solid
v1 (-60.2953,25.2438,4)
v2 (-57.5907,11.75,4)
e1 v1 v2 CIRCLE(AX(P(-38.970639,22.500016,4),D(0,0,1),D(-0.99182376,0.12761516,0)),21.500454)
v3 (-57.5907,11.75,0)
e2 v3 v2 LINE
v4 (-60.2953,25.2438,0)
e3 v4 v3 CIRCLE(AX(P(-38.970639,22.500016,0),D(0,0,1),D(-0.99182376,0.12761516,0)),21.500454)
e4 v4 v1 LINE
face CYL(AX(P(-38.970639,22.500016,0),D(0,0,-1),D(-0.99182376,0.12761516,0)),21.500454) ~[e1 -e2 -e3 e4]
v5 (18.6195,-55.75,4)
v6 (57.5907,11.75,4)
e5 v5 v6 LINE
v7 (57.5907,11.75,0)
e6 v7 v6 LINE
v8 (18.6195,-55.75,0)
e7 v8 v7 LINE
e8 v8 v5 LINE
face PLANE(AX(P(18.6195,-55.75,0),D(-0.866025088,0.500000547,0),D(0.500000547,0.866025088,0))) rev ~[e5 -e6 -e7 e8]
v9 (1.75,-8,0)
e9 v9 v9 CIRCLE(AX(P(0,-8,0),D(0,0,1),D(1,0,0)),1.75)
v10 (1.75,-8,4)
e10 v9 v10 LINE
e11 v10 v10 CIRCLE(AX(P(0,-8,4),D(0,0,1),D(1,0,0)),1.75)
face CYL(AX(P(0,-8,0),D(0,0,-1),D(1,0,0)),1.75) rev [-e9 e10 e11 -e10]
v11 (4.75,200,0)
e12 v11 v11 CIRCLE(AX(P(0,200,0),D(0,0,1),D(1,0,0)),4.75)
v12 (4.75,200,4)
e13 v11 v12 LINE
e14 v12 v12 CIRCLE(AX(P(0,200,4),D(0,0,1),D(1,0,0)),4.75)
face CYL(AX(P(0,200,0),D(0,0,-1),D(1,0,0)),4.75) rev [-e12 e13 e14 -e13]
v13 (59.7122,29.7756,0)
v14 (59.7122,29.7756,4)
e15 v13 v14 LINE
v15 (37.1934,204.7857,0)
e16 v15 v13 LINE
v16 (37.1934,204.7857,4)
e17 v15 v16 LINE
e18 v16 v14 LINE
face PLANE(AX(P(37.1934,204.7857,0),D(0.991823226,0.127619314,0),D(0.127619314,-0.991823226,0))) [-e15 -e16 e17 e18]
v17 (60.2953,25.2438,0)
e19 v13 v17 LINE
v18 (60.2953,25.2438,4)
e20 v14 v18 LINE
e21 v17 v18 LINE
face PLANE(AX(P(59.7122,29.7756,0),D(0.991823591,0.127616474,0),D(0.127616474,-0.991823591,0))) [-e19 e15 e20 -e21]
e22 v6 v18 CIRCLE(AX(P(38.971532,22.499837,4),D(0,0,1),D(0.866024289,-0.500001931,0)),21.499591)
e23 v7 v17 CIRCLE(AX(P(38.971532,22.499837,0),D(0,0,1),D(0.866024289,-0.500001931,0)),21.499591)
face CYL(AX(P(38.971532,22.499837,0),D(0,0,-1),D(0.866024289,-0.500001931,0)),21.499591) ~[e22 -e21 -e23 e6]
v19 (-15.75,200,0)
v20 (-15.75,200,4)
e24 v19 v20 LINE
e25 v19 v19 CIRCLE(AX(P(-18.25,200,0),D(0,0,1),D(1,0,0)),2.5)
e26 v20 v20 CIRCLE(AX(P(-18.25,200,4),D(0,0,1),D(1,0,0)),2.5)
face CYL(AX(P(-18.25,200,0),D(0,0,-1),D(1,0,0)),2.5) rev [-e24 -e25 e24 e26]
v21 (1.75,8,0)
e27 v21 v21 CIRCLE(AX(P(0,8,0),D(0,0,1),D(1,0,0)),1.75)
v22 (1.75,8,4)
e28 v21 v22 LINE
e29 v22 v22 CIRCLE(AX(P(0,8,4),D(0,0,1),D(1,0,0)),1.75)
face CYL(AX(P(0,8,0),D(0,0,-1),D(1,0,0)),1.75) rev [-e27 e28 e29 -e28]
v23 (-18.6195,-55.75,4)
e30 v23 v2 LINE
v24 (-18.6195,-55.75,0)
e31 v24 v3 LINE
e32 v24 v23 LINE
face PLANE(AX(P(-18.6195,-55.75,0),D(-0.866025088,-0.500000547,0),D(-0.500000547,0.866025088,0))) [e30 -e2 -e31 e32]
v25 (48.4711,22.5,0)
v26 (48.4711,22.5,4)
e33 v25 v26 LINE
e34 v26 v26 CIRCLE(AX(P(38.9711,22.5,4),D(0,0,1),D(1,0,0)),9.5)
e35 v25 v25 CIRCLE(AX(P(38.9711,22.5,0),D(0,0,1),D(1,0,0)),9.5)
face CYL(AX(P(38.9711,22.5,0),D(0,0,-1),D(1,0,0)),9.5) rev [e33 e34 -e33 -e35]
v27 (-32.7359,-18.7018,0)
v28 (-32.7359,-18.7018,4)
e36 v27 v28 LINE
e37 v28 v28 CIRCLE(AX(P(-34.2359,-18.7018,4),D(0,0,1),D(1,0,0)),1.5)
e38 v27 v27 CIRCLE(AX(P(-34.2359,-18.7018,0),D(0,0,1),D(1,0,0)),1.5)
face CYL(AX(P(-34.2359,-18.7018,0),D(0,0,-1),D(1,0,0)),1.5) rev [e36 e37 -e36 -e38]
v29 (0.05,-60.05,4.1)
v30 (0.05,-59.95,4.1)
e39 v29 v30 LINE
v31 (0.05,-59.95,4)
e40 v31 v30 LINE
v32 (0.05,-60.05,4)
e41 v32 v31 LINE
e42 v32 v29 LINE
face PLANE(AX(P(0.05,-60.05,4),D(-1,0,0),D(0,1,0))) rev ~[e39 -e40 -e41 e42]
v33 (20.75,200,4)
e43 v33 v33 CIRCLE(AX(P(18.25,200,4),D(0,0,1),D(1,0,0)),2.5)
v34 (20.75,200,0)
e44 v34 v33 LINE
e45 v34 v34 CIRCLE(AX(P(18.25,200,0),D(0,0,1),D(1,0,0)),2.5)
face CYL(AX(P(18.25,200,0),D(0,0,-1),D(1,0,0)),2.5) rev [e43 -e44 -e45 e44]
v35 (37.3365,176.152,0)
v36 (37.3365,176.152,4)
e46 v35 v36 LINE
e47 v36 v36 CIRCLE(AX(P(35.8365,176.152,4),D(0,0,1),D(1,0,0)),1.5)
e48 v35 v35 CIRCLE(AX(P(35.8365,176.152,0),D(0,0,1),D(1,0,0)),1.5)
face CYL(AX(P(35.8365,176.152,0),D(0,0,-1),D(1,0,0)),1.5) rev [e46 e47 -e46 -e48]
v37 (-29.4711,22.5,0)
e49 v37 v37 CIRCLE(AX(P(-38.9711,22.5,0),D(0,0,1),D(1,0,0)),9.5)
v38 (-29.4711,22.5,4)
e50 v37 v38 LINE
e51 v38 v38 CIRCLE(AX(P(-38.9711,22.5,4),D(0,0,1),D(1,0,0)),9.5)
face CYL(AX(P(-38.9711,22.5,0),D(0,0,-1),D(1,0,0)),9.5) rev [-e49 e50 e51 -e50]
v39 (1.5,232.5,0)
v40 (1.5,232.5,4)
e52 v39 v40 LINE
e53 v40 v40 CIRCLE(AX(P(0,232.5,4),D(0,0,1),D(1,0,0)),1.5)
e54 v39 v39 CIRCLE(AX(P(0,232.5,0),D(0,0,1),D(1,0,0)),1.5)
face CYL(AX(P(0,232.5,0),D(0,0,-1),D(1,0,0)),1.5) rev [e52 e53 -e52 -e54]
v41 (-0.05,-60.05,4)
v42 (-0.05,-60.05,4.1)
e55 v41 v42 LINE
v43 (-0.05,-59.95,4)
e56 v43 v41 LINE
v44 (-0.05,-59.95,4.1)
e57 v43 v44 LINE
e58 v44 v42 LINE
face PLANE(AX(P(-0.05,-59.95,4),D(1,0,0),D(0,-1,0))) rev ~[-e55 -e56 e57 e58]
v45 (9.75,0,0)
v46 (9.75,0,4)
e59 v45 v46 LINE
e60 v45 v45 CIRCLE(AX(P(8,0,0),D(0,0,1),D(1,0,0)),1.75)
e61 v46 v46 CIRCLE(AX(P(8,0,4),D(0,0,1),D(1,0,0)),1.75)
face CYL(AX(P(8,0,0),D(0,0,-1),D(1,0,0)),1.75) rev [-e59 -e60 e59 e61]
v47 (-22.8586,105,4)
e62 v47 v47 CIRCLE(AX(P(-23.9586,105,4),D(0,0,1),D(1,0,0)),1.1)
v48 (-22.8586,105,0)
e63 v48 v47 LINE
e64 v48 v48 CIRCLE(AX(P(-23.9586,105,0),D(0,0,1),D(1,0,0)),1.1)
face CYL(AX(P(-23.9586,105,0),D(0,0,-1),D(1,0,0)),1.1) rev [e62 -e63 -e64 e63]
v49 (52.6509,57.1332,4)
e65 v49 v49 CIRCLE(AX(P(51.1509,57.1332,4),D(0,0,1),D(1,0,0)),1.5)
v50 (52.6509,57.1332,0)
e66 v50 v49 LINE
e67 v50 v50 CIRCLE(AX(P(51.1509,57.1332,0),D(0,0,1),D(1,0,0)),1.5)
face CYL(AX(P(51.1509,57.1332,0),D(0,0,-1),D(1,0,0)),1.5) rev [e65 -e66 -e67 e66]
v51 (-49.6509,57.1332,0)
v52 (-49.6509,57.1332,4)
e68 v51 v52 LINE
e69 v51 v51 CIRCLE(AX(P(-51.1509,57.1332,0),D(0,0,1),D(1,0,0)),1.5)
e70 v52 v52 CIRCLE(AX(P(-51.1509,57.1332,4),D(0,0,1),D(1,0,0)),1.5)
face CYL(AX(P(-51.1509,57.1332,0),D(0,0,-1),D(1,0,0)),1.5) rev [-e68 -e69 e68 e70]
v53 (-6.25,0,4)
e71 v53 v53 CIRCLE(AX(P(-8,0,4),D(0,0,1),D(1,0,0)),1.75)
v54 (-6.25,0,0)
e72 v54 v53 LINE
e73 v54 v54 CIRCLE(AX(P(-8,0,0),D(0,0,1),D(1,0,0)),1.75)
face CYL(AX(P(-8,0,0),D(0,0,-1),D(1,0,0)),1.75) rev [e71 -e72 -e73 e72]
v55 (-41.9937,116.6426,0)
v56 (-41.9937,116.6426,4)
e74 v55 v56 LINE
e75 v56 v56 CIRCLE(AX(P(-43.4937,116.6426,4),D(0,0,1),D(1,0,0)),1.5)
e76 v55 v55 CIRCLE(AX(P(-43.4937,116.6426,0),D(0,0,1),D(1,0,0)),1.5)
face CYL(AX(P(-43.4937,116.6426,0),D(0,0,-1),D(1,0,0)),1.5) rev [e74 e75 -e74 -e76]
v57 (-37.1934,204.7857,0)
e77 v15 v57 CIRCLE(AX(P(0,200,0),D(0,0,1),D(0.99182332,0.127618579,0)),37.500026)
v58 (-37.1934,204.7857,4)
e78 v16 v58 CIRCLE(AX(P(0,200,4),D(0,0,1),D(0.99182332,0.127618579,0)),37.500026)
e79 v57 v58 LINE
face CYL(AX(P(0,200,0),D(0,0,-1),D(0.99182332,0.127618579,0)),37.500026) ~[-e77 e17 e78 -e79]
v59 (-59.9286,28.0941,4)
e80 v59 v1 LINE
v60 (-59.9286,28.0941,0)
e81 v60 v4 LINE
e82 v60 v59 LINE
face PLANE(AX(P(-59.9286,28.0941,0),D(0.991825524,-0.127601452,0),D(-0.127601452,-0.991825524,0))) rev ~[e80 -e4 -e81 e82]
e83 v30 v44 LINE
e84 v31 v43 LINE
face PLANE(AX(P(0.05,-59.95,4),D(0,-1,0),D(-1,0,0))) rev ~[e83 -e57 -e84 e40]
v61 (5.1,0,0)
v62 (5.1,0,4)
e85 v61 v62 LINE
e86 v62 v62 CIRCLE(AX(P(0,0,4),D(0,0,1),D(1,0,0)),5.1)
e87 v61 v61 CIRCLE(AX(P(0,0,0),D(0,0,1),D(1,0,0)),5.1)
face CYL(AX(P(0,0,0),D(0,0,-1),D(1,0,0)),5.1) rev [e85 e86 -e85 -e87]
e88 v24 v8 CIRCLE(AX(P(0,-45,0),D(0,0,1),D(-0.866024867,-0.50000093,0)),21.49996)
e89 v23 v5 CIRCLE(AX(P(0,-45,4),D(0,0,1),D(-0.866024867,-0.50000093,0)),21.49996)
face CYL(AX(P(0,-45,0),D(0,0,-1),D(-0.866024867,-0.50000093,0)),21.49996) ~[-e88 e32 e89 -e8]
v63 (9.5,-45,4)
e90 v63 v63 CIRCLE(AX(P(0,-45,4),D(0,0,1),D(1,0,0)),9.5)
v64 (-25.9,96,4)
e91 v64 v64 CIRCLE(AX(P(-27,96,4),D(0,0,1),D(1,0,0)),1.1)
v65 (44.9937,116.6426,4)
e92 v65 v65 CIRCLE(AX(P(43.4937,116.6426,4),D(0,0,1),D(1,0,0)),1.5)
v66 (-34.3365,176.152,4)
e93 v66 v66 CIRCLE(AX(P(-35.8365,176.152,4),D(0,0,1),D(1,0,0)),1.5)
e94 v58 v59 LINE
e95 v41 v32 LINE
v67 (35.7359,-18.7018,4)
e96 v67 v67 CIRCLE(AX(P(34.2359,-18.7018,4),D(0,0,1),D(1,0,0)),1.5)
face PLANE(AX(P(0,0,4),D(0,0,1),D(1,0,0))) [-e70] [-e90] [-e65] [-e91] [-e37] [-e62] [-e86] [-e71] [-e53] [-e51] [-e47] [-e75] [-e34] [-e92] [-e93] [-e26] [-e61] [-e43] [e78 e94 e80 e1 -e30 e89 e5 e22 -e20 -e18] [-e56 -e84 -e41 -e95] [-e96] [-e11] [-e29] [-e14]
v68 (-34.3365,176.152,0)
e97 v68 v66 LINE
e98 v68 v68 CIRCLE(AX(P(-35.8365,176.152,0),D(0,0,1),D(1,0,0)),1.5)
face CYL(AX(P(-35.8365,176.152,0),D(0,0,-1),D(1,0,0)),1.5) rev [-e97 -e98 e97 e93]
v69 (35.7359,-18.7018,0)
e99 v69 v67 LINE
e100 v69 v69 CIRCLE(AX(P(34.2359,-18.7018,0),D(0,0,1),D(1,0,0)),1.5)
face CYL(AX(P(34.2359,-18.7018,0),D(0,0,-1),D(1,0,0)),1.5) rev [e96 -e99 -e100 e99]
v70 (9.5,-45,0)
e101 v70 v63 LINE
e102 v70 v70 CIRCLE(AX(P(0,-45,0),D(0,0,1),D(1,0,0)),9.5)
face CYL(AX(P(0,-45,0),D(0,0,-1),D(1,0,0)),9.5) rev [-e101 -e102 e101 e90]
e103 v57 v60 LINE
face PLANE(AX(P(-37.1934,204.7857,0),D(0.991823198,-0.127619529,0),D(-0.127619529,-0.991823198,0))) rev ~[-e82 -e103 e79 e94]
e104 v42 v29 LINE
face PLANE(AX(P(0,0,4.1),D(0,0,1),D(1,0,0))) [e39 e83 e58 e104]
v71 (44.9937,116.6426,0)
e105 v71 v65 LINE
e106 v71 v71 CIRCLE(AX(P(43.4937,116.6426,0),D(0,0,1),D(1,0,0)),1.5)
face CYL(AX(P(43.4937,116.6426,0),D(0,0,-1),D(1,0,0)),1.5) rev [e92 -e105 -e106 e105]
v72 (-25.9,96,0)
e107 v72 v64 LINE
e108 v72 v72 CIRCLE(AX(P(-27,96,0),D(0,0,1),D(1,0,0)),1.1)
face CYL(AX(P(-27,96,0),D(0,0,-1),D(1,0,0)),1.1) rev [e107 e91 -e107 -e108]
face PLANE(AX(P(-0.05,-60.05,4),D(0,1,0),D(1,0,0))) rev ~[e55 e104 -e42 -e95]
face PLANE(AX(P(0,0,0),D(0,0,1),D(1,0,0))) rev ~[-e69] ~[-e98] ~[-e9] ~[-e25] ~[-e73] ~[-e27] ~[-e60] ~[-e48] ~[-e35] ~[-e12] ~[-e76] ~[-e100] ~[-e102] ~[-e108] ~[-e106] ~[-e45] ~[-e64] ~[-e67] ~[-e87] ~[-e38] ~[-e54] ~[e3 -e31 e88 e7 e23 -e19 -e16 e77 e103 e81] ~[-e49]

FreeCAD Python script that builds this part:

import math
import FreeCAD as App
import Part
import Sketcher
Q = App.Units.Quantity

doc = App.newDocument("Part")
body = doc.addObject("PartDesign::Body", "Body")

# Sketch on XY plane
sketch1 = body.newObject("Sketcher::SketchObject", "Sketch")
sketch1.AttachmentSupport = (doc.getObject("XY_Plane"), [""])
sketch1.MapMode = "FlatFace"
sketch1.addGeometry([
    Part.LineSegment(App.Vector(59.7, 29.8, 0), App.Vector(37.2, 204.8, 0)),  # 0
    Part.ArcOfCircle(Part.Circle(App.Vector(0, 200, 0), App.Vector(0, 0, 1), 37.5), math.radians(7), math.radians(173)),  # 1
    Part.LineSegment(App.Vector(-37.2, 204.8, 0), App.Vector(-59.9, 28.1, 0)),  # 2
    Part.LineSegment(App.Vector(-59.9, 28.1, 0), App.Vector(-60.3, 25.2, 0)),  # 3
    Part.ArcOfCircle(Part.Circle(App.Vector(-39, 22.5, 0), App.Vector(0, 0, 1), 21.5), math.radians(173), math.radians(210)),  # 4
    Part.LineSegment(App.Vector(-57.6, 11.8, 0), App.Vector(-18.6, -55.8, 0)),  # 5
    Part.ArcOfCircle(Part.Circle(App.Vector(0, -45, 0), App.Vector(0, 0, 1), 21.5), math.radians(-150), math.radians(-30)),  # 6
    Part.LineSegment(App.Vector(18.6, -55.8, 0), App.Vector(57.6, 11.8, 0)),  # 7
    Part.ArcOfCircle(Part.Circle(App.Vector(39, 22.5, 0), App.Vector(0, 0, 1), 21.5), math.radians(-30), math.radians(7)),  # 8
    Part.LineSegment(App.Vector(60.3, 25.2, 0), App.Vector(59.7, 29.8, 0)),  # 9
    Part.Circle(App.Vector(-34.2, -18.7, 0), App.Vector(0, 0, 1), 1.5),  # 10
    Part.Circle(App.Vector(0, -45, 0), App.Vector(0, 0, 1), 9.5),  # 11
    Part.Circle(App.Vector(-8, 0, 0), App.Vector(0, 0, 1), 1.8),  # 12
    Part.Circle(App.Vector(0, -8, 0), App.Vector(0, 0, 1), 1.8),  # 13
    Part.Circle(App.Vector(0, 0, 0), App.Vector(0, 0, 1), 5.1),  # 14
    Part.Circle(App.Vector(0, 8, 0), App.Vector(0, 0, 1), 1.8),  # 15
    Part.Circle(App.Vector(-39, 22.5, 0), App.Vector(0, 0, 1), 9.5),  # 16
    Part.Circle(App.Vector(-51.2, 57.1, 0), App.Vector(0, 0, 1), 1.5),  # 17
    Part.Circle(App.Vector(8, 0, 0), App.Vector(0, 0, 1), 1.8),  # 18
    Part.Circle(App.Vector(34.2, -18.7, 0), App.Vector(0, 0, 1), 1.5),  # 19
    Part.Circle(App.Vector(39, 22.5, 0), App.Vector(0, 0, 1), 9.5),  # 20
    Part.Circle(App.Vector(51.2, 57.1, 0), App.Vector(0, 0, 1), 1.5),  # 21
    Part.Circle(App.Vector(-43.5, 116.6, 0), App.Vector(0, 0, 1), 1.5),  # 22
    Part.Circle(App.Vector(-27, 96, 0), App.Vector(0, 0, 1), 1.1),  # 23
    Part.Circle(App.Vector(-24, 105, 0), App.Vector(0, 0, 1), 1.1),  # 24
    Part.Circle(App.Vector(-35.8, 176.2, 0), App.Vector(0, 0, 1), 1.5),  # 25
    Part.Circle(App.Vector(-18.2, 200, 0), App.Vector(0, 0, 1), 2.5),  # 26
    Part.Circle(App.Vector(0, 200, 0), App.Vector(0, 0, 1), 4.8),  # 27
    Part.Circle(App.Vector(0, 232.5, 0), App.Vector(0, 0, 1), 1.5),  # 28
    Part.Circle(App.Vector(43.5, 116.6, 0), App.Vector(0, 0, 1), 1.5),  # 29
    Part.Circle(App.Vector(18.2, 200, 0), App.Vector(0, 0, 1), 2.5),  # 30
    Part.Circle(App.Vector(35.8, 176.2, 0), App.Vector(0, 0, 1), 1.5),  # 31
], False)
sketch1.addConstraint([
    Sketcher.Constraint("Tangent", 0, 2, 1, 1),
    Sketcher.Constraint("Tangent", 1, 2, 2, 1),
    Sketcher.Constraint("Coincident", 2, 2, 3, 1),
    Sketcher.Constraint("Tangent", 3, 2, 4, 1),
    Sketcher.Constraint("Tangent", 4, 2, 5, 1),
    Sketcher.Constraint("Tangent", 5, 2, 6, 1),
    Sketcher.Constraint("Tangent", 6, 2, 7, 1),
    Sketcher.Constraint("Tangent", 7, 2, 8, 1),
    Sketcher.Constraint("Tangent", 8, 2, 9, 1),
    Sketcher.Constraint("Coincident", 9, 2, 0, 1),
    Sketcher.Constraint("Coincident", 14, 3, -1, 1),
    Sketcher.Constraint("Coincident", 11, 3, 6, 3),
    Sketcher.Constraint("Coincident", 16, 3, 4, 3),
    Sketcher.Constraint("Coincident", 20, 3, 8, 3),
    Sketcher.Constraint("Coincident", 27, 3, 1, 3),
    Sketcher.Constraint("Equal", 4, 6),
    Sketcher.Constraint("Equal", 6, 8),
    Sketcher.Constraint("Equal", 12, 13),
    Sketcher.Constraint("Equal", 13, 15),
    Sketcher.Constraint("Equal", 11, 16),
    Sketcher.Constraint("Equal", 10, 17),
    Sketcher.Constraint("Equal", 15, 18),
    Sketcher.Constraint("Equal", 17, 19),
    Sketcher.Constraint("Equal", 16, 20),
    Sketcher.Constraint("Equal", 19, 21),
    Sketcher.Constraint("Equal", 21, 22),
    Sketcher.Constraint("Equal", 23, 24),
    Sketcher.Constraint("Equal", 22, 25),
    Sketcher.Constraint("Equal", 25, 28),
    Sketcher.Constraint("Equal", 28, 29),
    Sketcher.Constraint("Equal", 26, 30),
    Sketcher.Constraint("Equal", 29, 31),
    Sketcher.Constraint("Symmetric", 13, 3, 15, 3, -1, 1),
    Sketcher.Constraint("Symmetric", 12, 3, 18, 3, -1, 1),
    Sketcher.Constraint("Symmetric", 4, 3, 8, 3, -2),
    Sketcher.Constraint("Symmetric", 10, 3, 19, 3, -2),
    Sketcher.Constraint("Symmetric", 17, 3, 21, 3, -2),
    Sketcher.Constraint("Symmetric", 22, 3, 29, 3, -2),
    Sketcher.Constraint("Symmetric", 26, 3, 30, 3, -2),
    Sketcher.Constraint("Symmetric", 25, 3, 31, 3, -2),
    Sketcher.Constraint("PointOnObject", 1, 3, -2),
    Sketcher.Constraint("PointOnObject", 6, 3, -2),
    Sketcher.Constraint("PointOnObject", 12, 3, -1),
    Sketcher.Constraint("PointOnObject", 13, 3, -2),
    Sketcher.Constraint("PointOnObject", 28, 3, -2),
    Sketcher.Constraint("Parallel", 2, 3),
    Sketcher.Constraint("Parallel", 0, 9),
    Sketcher.Constraint("Horizontal", 1, 3, 26, 3),
    Sketcher.Constraint("Diameter", 10, Q("3 mm")),
    Sketcher.Constraint("Diameter", 11, Q("19 mm")),
    Sketcher.Constraint("Diameter", 26, Q("5 mm")),
    Sketcher.Constraint("Diameter", 12, Q("3.5 mm")),
    Sketcher.Constraint("Diameter", 14, Q("10.2 mm")),
    Sketcher.Constraint("Diameter", 23, Q("2.2 mm")),
    Sketcher.Constraint("Diameter", 27, Q("9.5 mm")),
    Sketcher.Constraint("Radius", 1, Q("37.5 mm")),
    Sketcher.Constraint("Radius", 4, Q("21.5 mm")),
    Sketcher.Constraint("DistanceY", -1, 1, 1, 3, Q("200 mm")),
    Sketcher.Constraint("DistanceY", 6, 3, -1, 1, Q("45 mm")),
    Sketcher.Constraint("DistanceX", 12, 3, -1, 1, Q("8 mm")),
    Sketcher.Constraint("DistanceY", 13, 3, -1, 1, Q("8 mm")),
    Sketcher.Constraint("DistanceX", 23, 3, -1, 1, Q("27 mm")),
    Sketcher.Constraint("DistanceY", 24, 3, 26, 3, Q("95 mm")),
    Sketcher.Constraint("DistanceY", 23, 3, 26, 3, Q("104 mm")),
    Sketcher.Constraint("DistanceY", 15, 3, 4, 3, Q("14.5 mm")),
    Sketcher.Constraint("DistanceX", 26, 3, -1, 1, Q("18.25 mm")),
    Sketcher.Constraint("Angle", 5, Q("-60 deg")),
    Sketcher.Constraint("DistanceY", -1, 1, 28, 3, Q("232.5 mm")),
    Sketcher.Constraint("Distance", 0, Q("176.453 mm")),
    Sketcher.Constraint("DistanceX", 10, 3, -1, 1, Q("34.236 mm")),
    Sketcher.Constraint("DistanceX", 17, 3, -1, 1, Q("51.151 mm")),
    Sketcher.Constraint("DistanceY", -1, 1, 25, 3, Q("176.152 mm")),
    Sketcher.Constraint("DistanceY", -1, 1, 2, 2, Q("28.094 mm")),
    Sketcher.Constraint("DistanceX", 22, 3, 24, 3, Q("19.535 mm")),
    Sketcher.Constraint("DistanceX", 25, 3, 24, 3, Q("11.878 mm")),
    Sketcher.Constraint("DistanceX", 31, 3, 0, 2, Q("1.357 mm")),
    Sketcher.Constraint("DistanceY", 2, 2, 17, 3, Q("29.039 mm")),
    Sketcher.Constraint("DistanceY", 10, 3, 2, 2, Q("46.796 mm")),
    Sketcher.Constraint("DistanceY", -1, 1, 22, 3, Q("116.6426 mm")),
])
pad1 = body.newObject("PartDesign::Pad", "Pad")
pad1.Profile = sketch1
pad1.Length = 4

# Sketch on XY plane
sketch2 = body.newObject("Sketcher::SketchObject", "Sketch001")
sketch2.AttachmentSupport = (doc.getObject("XY_Plane"), [""])
sketch2.MapMode = "FlatFace"
sketch2.AttachmentOffset = App.Placement(App.Vector(0, 0, 4), App.Rotation())
sketch2.addGeometry([
    Part.LineSegment(App.Vector(0.05, -60.05, 0), App.Vector(0.05, -59.95, 0)),
    Part.LineSegment(App.Vector(0.05, -59.95, 0), App.Vector(-0.05, -59.95, 0)),
    Part.LineSegment(App.Vector(-0.05, -59.95, 0), App.Vector(-0.05, -60.05, 0)),
    Part.LineSegment(App.Vector(-0.05, -60.05, 0), App.Vector(0.05, -60.05, 0)),
], False)
sketch2.addConstraint([
    Sketcher.Constraint("Coincident", 0, 2, 1, 1),
    Sketcher.Constraint("Coincident", 1, 2, 2, 1),
    Sketcher.Constraint("Coincident", 2, 2, 3, 1),
    Sketcher.Constraint("Coincident", 3, 2, 0, 1),
    Sketcher.Constraint("Vertical", 0),
    Sketcher.Constraint("Horizontal", 1),
    Sketcher.Constraint("Vertical", 2),
    Sketcher.Constraint("Horizontal", 3),
    Sketcher.Constraint("Equal", 3, 0),
    Sketcher.Constraint("DistanceX", 1, 2, 1, 1, Q("0.1 mm")),
    Sketcher.Constraint("DistanceX", -1, 1, 0, 2, Q("0.05 mm")),
    Sketcher.Constraint("DistanceY", 0, 2, -1, 1, Q("59.95 mm")),
])
pad2 = body.newObject("PartDesign::Pad", "Pad001")
pad2.Profile = sketch2
pad2.Length = 0.1

doc.recompute()
